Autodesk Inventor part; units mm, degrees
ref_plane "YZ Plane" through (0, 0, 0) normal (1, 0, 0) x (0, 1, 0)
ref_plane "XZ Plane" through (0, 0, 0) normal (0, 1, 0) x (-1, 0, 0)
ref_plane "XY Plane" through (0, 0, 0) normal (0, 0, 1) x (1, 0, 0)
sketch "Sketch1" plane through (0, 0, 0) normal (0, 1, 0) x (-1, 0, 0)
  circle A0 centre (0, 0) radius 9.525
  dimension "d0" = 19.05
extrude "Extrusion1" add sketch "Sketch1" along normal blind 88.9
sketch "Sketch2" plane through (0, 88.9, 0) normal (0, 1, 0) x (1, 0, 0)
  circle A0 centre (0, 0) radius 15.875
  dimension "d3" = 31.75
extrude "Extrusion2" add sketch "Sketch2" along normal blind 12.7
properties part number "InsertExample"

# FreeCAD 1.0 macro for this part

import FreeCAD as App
import Part
import Sketcher

V = App.Vector
Q = App.Units.Quantity

doc = App.newDocument("Part")
params = doc.addObject("Spreadsheet::Sheet", "Params")
for row, (alias, value) in enumerate([
    ("sketch1_diameter", "0.75 in"),
    ("pad1_length", "3.5 in"),
    ("sketch2_diameter", "1.25 in"),
    ("pad2_length", "0.5 in"),
], start=1):
    params.set(f"A{row}", alias)
    params.set(f"B{row}", "=" + value)
    params.setAlias(f"B{row}", alias)

body = doc.addObject("PartDesign::Body", "Body")

# Sketch on XZ plane
sketch1 = doc.addObject("Sketcher::SketchObject", "Sketch")
body.addObject(sketch1)
sketch1.AttachmentSupport = (doc.XZ_Plane, [""])
sketch1.MapMode = "FlatFace"
sketch1.addGeometry(Part.Circle(V(0, 0, 0), V(0, 0, 1), 9.525), False)
sketch1.addConstraint([
    Sketcher.Constraint("Coincident", 0, 3, -1, 1),
    Sketcher.Constraint("Diameter", 0, Q("0.75 in")),
])
sketch1.setExpression("Constraints[1]", "Params.sketch1_diameter")
pad1 = doc.addObject("PartDesign::Pad", "Pad")
body.addObject(pad1)
pad1.Profile = sketch1
pad1.setExpression("Length", "Params.pad1_length")
pad1.Reversed = True

# Sketch on XZ plane
sketch2 = doc.addObject("Sketcher::SketchObject", "Sketch001")
body.addObject(sketch2)
sketch2.AttachmentSupport = (doc.XZ_Plane, [""])
sketch2.MapMode = "FlatFace"
sketch2.AttachmentOffset = App.Placement(V(0, 0, -3.5 * 25.4), App.Rotation())
sketch2.addGeometry(Part.Circle(V(0, 0, 0), V(0, 0, 1), 15.875), False)
sketch2.addConstraint([
    Sketcher.Constraint("Coincident", 0, 3, -1, 1),
    Sketcher.Constraint("Diameter", 0, Q("1.25 in")),
])
sketch2.setExpression("Constraints[1]", "Params.sketch2_diameter")
pad2 = doc.addObject("PartDesign::Pad", "Pad001")
body.addObject(pad2)
pad2.Profile = sketch2
pad2.setExpression("Length", "Params.pad2_length")
pad2.Reversed = True

doc.recompute()
